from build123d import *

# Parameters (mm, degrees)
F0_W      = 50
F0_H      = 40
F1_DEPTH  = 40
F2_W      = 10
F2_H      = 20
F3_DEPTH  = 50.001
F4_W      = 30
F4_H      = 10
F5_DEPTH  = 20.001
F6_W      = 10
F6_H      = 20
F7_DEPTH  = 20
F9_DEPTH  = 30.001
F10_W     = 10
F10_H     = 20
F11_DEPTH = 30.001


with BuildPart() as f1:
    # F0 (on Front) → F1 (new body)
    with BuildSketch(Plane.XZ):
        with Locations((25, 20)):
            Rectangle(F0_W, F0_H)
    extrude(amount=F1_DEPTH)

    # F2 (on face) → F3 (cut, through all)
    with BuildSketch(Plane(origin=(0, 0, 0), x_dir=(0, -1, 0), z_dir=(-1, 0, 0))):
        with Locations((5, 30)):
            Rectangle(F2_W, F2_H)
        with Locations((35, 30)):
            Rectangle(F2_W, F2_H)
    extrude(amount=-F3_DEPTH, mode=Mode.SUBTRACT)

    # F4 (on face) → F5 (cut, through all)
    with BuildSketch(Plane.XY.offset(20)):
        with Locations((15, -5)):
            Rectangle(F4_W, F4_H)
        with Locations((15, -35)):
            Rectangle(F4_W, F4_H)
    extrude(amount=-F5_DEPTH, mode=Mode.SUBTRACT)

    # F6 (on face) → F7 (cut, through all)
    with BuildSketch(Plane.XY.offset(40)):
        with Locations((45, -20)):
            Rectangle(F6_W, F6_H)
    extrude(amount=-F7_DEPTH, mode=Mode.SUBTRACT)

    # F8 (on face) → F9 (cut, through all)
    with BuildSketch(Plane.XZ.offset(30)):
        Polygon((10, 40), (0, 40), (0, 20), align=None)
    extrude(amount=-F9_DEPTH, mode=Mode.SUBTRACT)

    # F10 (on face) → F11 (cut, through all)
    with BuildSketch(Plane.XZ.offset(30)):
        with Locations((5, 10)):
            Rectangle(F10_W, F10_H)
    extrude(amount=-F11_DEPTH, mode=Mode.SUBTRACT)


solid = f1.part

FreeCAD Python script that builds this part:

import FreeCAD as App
import Part
import Sketcher

V = App.Vector
Q = App.Units.Quantity

doc = App.newDocument("Part")
body = doc.addObject("PartDesign::Body", "Body")

sketch1 = body.newObject("Sketcher::SketchObject", "Sketch")
sketch1.AttachmentSupport = (doc.getObject("XZ_Plane"), [""])
sketch1.MapMode = "FlatFace"
sketch1.addGeometry(Part.LineSegment(V(0, 40, 0), V(0, 0, 0)), False)
sketch1.addGeometry(Part.LineSegment(V(0, 0, 0), V(50, 0, 0)), False)
sketch1.addGeometry(Part.LineSegment(V(50, 0, 0), V(50, 40, 0)), False)
sketch1.addGeometry(Part.LineSegment(V(50, 40, 0), V(0, 40, 0)), False)
sketch1.addConstraint(Sketcher.Constraint("Coincident", 0, 2, 1, 1))
sketch1.addConstraint(Sketcher.Constraint("Coincident", 1, 2, 2, 1))
sketch1.addConstraint(Sketcher.Constraint("Coincident", 2, 2, 3, 1))
sketch1.addConstraint(Sketcher.Constraint("Coincident", 3, 2, 0, 1))
sketch1.addConstraint(Sketcher.Constraint("Vertical", 0))
sketch1.addConstraint(Sketcher.Constraint("Horizontal", 1))
sketch1.addConstraint(Sketcher.Constraint("Vertical", 2))
sketch1.addConstraint(Sketcher.Constraint("Horizontal", 3))
sketch1.addConstraint(Sketcher.Constraint("Coincident", 0, 2, -1, 1))
sketch1.addConstraint(Sketcher.Constraint("DistanceX", 1, 1, 1, 2, Q("50 mm")))
sketch1.addConstraint(Sketcher.Constraint("DistanceY", 0, 2, 0, 1, Q("40 mm")))
pad1 = body.newObject("PartDesign::Pad", "Pad")
pad1.Profile = sketch1
pad1.Length = 40

sketch2 = body.newObject("Sketcher::SketchObject", "Sketch001")
sketch2.AttachmentSupport = (doc.getObject("YZ_Plane"), [""])
sketch2.MapMode = "FlatFace"
sketch2.addGeometry(Part.LineSegment(V(0, 40, 0), V(0, 20, 0)), False)
sketch2.addGeometry(Part.LineSegment(V(0, 20, 0), V(-10, 20, 0)), False)
sketch2.addGeometry(Part.LineSegment(V(-10, 20, 0), V(-10, 40, 0)), False)
sketch2.addGeometry(Part.LineSegment(V(-10, 40, 0), V(0, 40, 0)), False)
sketch2.addGeometry(Part.LineSegment(V(-30, 40, 0), V(-30, 20, 0)), False)
sketch2.addGeometry(Part.LineSegment(V(-30, 20, 0), V(-40, 20, 0)), False)
sketch2.addGeometry(Part.LineSegment(V(-40, 20, 0), V(-40, 40, 0)), False)
sketch2.addGeometry(Part.LineSegment(V(-40, 40, 0), V(-30, 40, 0)), False)
sketch2.addConstraint(Sketcher.Constraint("Coincident", 0, 2, 1, 1))
sketch2.addConstraint(Sketcher.Constraint("Coincident", 1, 2, 2, 1))
sketch2.addConstraint(Sketcher.Constraint("Coincident", 2, 2, 3, 1))
sketch2.addConstraint(Sketcher.Constraint("Coincident", 3, 2, 0, 1))
sketch2.addConstraint(Sketcher.Constraint("Coincident", 4, 2, 5, 1))
sketch2.addConstraint(Sketcher.Constraint("Coincident", 5, 2, 6, 1))
sketch2.addConstraint(Sketcher.Constraint("Coincident", 6, 2, 7, 1))
sketch2.addConstraint(Sketcher.Constraint("Coincident", 7, 2, 4, 1))
sketch2.addConstraint(Sketcher.Constraint("Vertical", 0))
sketch2.addConstraint(Sketcher.Constraint("Horizontal", 1))
sketch2.addConstraint(Sketcher.Constraint("Vertical", 2))
sketch2.addConstraint(Sketcher.Constraint("Horizontal", 3))
sketch2.addConstraint(Sketcher.Constraint("Vertical", 4))
sketch2.addConstraint(Sketcher.Constraint("Horizontal", 5))
sketch2.addConstraint(Sketcher.Constraint("Vertical", 6))
sketch2.addConstraint(Sketcher.Constraint("Horizontal", 7))
sketch2.addConstraint(Sketcher.Constraint("PointOnObject", 0, 2, -2))
sketch2.addConstraint(Sketcher.Constraint("Horizontal", 1, 2, 4, 2))
sketch2.addConstraint(Sketcher.Constraint("Horizontal", 3, 2, 6, 2))
sketch2.addConstraint(Sketcher.Constraint("Equal", 3, 5))
sketch2.addConstraint(Sketcher.Constraint("DistanceX", 1, 2, 1, 1, Q("10 mm")))
sketch2.addConstraint(Sketcher.Constraint("DistanceY", 0, 2, 0, 1, Q("20 mm")))
sketch2.addConstraint(Sketcher.Constraint("DistanceY", -1, 1, 0, 2, Q("20 mm")))
sketch2.addConstraint(Sketcher.Constraint("DistanceX", 4, 2, -1, 1, Q("30 mm")))
pocket1 = body.newObject("PartDesign::Pocket", "Pocket")
pocket1.Profile = sketch2
pocket1.Type = "ThroughAll"
pocket1.Reversed = True

sketch3 = body.newObject("Sketcher::SketchObject", "Sketch002")
sketch3.AttachmentSupport = (doc.getObject("XY_Plane"), [""])
sketch3.MapMode = "FlatFace"
sketch3.AttachmentOffset = App.Placement(V(0, 0, 20), App.Rotation())
sketch3.addGeometry(Part.LineSegment(V(0, 0, 0), V(0, -10, 0)), False)
sketch3.addGeometry(Part.LineSegment(V(0, -10, 0), V(30, -10, 0)), False)
sketch3.addGeometry(Part.LineSegment(V(30, -10, 0), V(30, 0, 0)), False)
sketch3.addGeometry(Part.LineSegment(V(30, 0, 0), V(0, 0, 0)), False)
sketch3.addGeometry(Part.LineSegment(V(0, -30, 0), V(0, -40, 0)), False)
sketch3.addGeometry(Part.LineSegment(V(0, -40, 0), V(30, -40, 0)), False)
sketch3.addGeometry(Part.LineSegment(V(30, -40, 0), V(30, -30, 0)), False)
sketch3.addGeometry(Part.LineSegment(V(30, -30, 0), V(0, -30, 0)), False)
sketch3.addConstraint(Sketcher.Constraint("Coincident", 0, 2, 1, 1))
sketch3.addConstraint(Sketcher.Constraint("Coincident", 1, 2, 2, 1))
sketch3.addConstraint(Sketcher.Constraint("Coincident", 2, 2, 3, 1))
sketch3.addConstraint(Sketcher.Constraint("Coincident", 3, 2, 0, 1))
sketch3.addConstraint(Sketcher.Constraint("Coincident", 4, 2, 5, 1))
sketch3.addConstraint(Sketcher.Constraint("Coincident", 5, 2, 6, 1))
sketch3.addConstraint(Sketcher.Constraint("Coincident", 6, 2, 7, 1))
sketch3.addConstraint(Sketcher.Constraint("Coincident", 7, 2, 4, 1))
sketch3.addConstraint(Sketcher.Constraint("Vertical", 0))
sketch3.addConstraint(Sketcher.Constraint("Horizontal", 1))
sketch3.addConstraint(Sketcher.Constraint("Vertical", 2))
sketch3.addConstraint(Sketcher.Constraint("Horizontal", 3))
sketch3.addConstraint(Sketcher.Constraint("Vertical", 4))
sketch3.addConstraint(Sketcher.Constraint("Horizontal", 5))
sketch3.addConstraint(Sketcher.Constraint("Vertical", 6))
sketch3.addConstraint(Sketcher.Constraint("Horizontal", 7))
sketch3.addConstraint(Sketcher.Constraint("Coincident", 3, 2, -1, 1))
sketch3.addConstraint(Sketcher.Constraint("PointOnObject", 4, 2, -2))
sketch3.addConstraint(Sketcher.Constraint("Vertical", 2, 2, 5, 2))
sketch3.addConstraint(Sketcher.Constraint("Equal", 2, 4))
sketch3.addConstraint(Sketcher.Constraint("DistanceX", 1, 1, 1, 2, Q("30 mm")))
sketch3.addConstraint(Sketcher.Constraint("DistanceY", 0, 2, 0, 1, Q("10 mm")))
sketch3.addConstraint(Sketcher.Constraint("DistanceY", 4, 2, -1, 1, Q("40 mm")))
pocket2 = body.newObject("PartDesign::Pocket", "Pocket001")
pocket2.Profile = sketch3
pocket2.Type = "ThroughAll"

sketch4 = body.newObject("Sketcher::SketchObject", "Sketch003")
sketch4.AttachmentSupport = (doc.getObject("XY_Plane"), [""])
sketch4.MapMode = "FlatFace"
sketch4.AttachmentOffset = App.Placement(V(0, 0, 40), App.Rotation())
sketch4.addGeometry(Part.LineSegment(V(40, -10, 0), V(40, -30, 0)), False)
sketch4.addGeometry(Part.LineSegment(V(40, -30, 0), V(50, -30, 0)), False)
sketch4.addGeometry(Part.LineSegment(V(50, -30, 0), V(50, -10, 0)), False)
sketch4.addGeometry(Part.LineSegment(V(50, -10, 0), V(40, -10, 0)), False)
sketch4.addConstraint(Sketcher.Constraint("Coincident", 0, 2, 1, 1))
sketch4.addConstraint(Sketcher.Constraint("Coincident", 1, 2, 2, 1))
sketch4.addConstraint(Sketcher.Constraint("Coincident", 2, 2, 3, 1))
sketch4.addConstraint(Sketcher.Constraint("Coincident", 3, 2, 0, 1))
sketch4.addConstraint(Sketcher.Constraint("Vertical", 0))
sketch4.addConstraint(Sketcher.Constraint("Horizontal", 1))
sketch4.addConstraint(Sketcher.Constraint("Vertical", 2))
sketch4.addConstraint(Sketcher.Constraint("Horizontal", 3))
sketch4.addConstraint(Sketcher.Constraint("DistanceX", 1, 1, 1, 2, Q("10 mm")))
sketch4.addConstraint(Sketcher.Constraint("DistanceY", 0, 2, 0, 1, Q("20 mm")))
sketch4.addConstraint(Sketcher.Constraint("DistanceX", -1, 1, 0, 2, Q("40 mm")))
sketch4.addConstraint(Sketcher.Constraint("DistanceY", 0, 2, -1, 1, Q("30 mm")))
pocket3 = body.newObject("PartDesign::Pocket", "Pocket002")
pocket3.Profile = sketch4
pocket3.Length = 20

sketch5 = body.newObject("Sketcher::SketchObject", "Sketch004")
sketch5.AttachmentSupport = (doc.getObject("XZ_Plane"), [""])
sketch5.MapMode = "FlatFace"
sketch5.AttachmentOffset = App.Placement(V(0, 0, 30), App.Rotation())
sketch5.addGeometry(Part.LineSegment(V(10, 40, 0), V(0, 40, 0)), False)
sketch5.addGeometry(Part.LineSegment(V(0, 40, 0), V(0, 20, 0)), False)
sketch5.addGeometry(Part.LineSegment(V(0, 20, 0), V(10, 40, 0)), False)
sketch5.addConstraint(Sketcher.Constraint("Coincident", 0, 2, 1, 1))
sketch5.addConstraint(Sketcher.Constraint("Coincident", 1, 2, 2, 1))
sketch5.addConstraint(Sketcher.Constraint("Coincident", 2, 2, 0, 1))
sketch5.addConstraint(Sketcher.Constraint("Horizontal", 0))
sketch5.addConstraint(Sketcher.Constraint("Vertical", 1))
sketch5.addConstraint(Sketcher.Constraint("PointOnObject", 0, 2, -2))
sketch5.addConstraint(Sketcher.Constraint("DistanceX", 0, 2, 0, 1, Q("10 mm")))
sketch5.addConstraint(Sketcher.Constraint("DistanceY", 1, 2, 1, 1, Q("20 mm")))
sketch5.addConstraint(Sketcher.Constraint("DistanceY", -1, 1, 0, 2, Q("40 mm")))
pocket4 = body.newObject("PartDesign::Pocket", "Pocket003")
pocket4.Profile = sketch5
pocket4.Type = "ThroughAll"

sketch6 = body.newObject("Sketcher::SketchObject", "Sketch005")
sketch6.AttachmentSupport = (doc.getObject("XZ_Plane"), [""])
sketch6.MapMode = "FlatFace"
sketch6.AttachmentOffset = App.Placement(V(0, 0, 30), App.Rotation())
sketch6.addGeometry(Part.LineSegment(V(0, 20, 0), V(0, 0, 0)), False)
sketch6.addGeometry(Part.LineSegment(V(0, 0, 0), V(10, 0, 0)), False)
sketch6.addGeometry(Part.LineSegment(V(10, 0, 0), V(10, 20, 0)), False)
sketch6.addGeometry(Part.LineSegment(V(10, 20, 0), V(0, 20, 0)), False)
sketch6.addConstraint(Sketcher.Constraint("Coincident", 0, 2, 1, 1))
sketch6.addConstraint(Sketcher.Constraint("Coincident", 1, 2, 2, 1))
sketch6.addConstraint(Sketcher.Constraint("Coincident", 2, 2, 3, 1))
sketch6.addConstraint(Sketcher.Constraint("Coincident", 3, 2, 0, 1))
sketch6.addConstraint(Sketcher.Constraint("Vertical", 0))
sketch6.addConstraint(Sketcher.Constraint("Horizontal", 1))
sketch6.addConstraint(Sketcher.Constraint("Vertical", 2))
sketch6.addConstraint(Sketcher.Constraint("Horizontal", 3))
sketch6.addConstraint(Sketcher.Constraint("Coincident", 0, 2, -1, 1))
sketch6.addConstraint(Sketcher.Constraint("DistanceX", 1, 1, 1, 2, Q("10 mm")))
sketch6.addConstraint(Sketcher.Constraint("DistanceY", 0, 2, 0, 1, Q("20 mm")))
pocket5 = body.newObject("PartDesign::Pocket", "Pocket004")
pocket5.Profile = sketch6
pocket5.Type = "ThroughAll"

doc.recompute()
